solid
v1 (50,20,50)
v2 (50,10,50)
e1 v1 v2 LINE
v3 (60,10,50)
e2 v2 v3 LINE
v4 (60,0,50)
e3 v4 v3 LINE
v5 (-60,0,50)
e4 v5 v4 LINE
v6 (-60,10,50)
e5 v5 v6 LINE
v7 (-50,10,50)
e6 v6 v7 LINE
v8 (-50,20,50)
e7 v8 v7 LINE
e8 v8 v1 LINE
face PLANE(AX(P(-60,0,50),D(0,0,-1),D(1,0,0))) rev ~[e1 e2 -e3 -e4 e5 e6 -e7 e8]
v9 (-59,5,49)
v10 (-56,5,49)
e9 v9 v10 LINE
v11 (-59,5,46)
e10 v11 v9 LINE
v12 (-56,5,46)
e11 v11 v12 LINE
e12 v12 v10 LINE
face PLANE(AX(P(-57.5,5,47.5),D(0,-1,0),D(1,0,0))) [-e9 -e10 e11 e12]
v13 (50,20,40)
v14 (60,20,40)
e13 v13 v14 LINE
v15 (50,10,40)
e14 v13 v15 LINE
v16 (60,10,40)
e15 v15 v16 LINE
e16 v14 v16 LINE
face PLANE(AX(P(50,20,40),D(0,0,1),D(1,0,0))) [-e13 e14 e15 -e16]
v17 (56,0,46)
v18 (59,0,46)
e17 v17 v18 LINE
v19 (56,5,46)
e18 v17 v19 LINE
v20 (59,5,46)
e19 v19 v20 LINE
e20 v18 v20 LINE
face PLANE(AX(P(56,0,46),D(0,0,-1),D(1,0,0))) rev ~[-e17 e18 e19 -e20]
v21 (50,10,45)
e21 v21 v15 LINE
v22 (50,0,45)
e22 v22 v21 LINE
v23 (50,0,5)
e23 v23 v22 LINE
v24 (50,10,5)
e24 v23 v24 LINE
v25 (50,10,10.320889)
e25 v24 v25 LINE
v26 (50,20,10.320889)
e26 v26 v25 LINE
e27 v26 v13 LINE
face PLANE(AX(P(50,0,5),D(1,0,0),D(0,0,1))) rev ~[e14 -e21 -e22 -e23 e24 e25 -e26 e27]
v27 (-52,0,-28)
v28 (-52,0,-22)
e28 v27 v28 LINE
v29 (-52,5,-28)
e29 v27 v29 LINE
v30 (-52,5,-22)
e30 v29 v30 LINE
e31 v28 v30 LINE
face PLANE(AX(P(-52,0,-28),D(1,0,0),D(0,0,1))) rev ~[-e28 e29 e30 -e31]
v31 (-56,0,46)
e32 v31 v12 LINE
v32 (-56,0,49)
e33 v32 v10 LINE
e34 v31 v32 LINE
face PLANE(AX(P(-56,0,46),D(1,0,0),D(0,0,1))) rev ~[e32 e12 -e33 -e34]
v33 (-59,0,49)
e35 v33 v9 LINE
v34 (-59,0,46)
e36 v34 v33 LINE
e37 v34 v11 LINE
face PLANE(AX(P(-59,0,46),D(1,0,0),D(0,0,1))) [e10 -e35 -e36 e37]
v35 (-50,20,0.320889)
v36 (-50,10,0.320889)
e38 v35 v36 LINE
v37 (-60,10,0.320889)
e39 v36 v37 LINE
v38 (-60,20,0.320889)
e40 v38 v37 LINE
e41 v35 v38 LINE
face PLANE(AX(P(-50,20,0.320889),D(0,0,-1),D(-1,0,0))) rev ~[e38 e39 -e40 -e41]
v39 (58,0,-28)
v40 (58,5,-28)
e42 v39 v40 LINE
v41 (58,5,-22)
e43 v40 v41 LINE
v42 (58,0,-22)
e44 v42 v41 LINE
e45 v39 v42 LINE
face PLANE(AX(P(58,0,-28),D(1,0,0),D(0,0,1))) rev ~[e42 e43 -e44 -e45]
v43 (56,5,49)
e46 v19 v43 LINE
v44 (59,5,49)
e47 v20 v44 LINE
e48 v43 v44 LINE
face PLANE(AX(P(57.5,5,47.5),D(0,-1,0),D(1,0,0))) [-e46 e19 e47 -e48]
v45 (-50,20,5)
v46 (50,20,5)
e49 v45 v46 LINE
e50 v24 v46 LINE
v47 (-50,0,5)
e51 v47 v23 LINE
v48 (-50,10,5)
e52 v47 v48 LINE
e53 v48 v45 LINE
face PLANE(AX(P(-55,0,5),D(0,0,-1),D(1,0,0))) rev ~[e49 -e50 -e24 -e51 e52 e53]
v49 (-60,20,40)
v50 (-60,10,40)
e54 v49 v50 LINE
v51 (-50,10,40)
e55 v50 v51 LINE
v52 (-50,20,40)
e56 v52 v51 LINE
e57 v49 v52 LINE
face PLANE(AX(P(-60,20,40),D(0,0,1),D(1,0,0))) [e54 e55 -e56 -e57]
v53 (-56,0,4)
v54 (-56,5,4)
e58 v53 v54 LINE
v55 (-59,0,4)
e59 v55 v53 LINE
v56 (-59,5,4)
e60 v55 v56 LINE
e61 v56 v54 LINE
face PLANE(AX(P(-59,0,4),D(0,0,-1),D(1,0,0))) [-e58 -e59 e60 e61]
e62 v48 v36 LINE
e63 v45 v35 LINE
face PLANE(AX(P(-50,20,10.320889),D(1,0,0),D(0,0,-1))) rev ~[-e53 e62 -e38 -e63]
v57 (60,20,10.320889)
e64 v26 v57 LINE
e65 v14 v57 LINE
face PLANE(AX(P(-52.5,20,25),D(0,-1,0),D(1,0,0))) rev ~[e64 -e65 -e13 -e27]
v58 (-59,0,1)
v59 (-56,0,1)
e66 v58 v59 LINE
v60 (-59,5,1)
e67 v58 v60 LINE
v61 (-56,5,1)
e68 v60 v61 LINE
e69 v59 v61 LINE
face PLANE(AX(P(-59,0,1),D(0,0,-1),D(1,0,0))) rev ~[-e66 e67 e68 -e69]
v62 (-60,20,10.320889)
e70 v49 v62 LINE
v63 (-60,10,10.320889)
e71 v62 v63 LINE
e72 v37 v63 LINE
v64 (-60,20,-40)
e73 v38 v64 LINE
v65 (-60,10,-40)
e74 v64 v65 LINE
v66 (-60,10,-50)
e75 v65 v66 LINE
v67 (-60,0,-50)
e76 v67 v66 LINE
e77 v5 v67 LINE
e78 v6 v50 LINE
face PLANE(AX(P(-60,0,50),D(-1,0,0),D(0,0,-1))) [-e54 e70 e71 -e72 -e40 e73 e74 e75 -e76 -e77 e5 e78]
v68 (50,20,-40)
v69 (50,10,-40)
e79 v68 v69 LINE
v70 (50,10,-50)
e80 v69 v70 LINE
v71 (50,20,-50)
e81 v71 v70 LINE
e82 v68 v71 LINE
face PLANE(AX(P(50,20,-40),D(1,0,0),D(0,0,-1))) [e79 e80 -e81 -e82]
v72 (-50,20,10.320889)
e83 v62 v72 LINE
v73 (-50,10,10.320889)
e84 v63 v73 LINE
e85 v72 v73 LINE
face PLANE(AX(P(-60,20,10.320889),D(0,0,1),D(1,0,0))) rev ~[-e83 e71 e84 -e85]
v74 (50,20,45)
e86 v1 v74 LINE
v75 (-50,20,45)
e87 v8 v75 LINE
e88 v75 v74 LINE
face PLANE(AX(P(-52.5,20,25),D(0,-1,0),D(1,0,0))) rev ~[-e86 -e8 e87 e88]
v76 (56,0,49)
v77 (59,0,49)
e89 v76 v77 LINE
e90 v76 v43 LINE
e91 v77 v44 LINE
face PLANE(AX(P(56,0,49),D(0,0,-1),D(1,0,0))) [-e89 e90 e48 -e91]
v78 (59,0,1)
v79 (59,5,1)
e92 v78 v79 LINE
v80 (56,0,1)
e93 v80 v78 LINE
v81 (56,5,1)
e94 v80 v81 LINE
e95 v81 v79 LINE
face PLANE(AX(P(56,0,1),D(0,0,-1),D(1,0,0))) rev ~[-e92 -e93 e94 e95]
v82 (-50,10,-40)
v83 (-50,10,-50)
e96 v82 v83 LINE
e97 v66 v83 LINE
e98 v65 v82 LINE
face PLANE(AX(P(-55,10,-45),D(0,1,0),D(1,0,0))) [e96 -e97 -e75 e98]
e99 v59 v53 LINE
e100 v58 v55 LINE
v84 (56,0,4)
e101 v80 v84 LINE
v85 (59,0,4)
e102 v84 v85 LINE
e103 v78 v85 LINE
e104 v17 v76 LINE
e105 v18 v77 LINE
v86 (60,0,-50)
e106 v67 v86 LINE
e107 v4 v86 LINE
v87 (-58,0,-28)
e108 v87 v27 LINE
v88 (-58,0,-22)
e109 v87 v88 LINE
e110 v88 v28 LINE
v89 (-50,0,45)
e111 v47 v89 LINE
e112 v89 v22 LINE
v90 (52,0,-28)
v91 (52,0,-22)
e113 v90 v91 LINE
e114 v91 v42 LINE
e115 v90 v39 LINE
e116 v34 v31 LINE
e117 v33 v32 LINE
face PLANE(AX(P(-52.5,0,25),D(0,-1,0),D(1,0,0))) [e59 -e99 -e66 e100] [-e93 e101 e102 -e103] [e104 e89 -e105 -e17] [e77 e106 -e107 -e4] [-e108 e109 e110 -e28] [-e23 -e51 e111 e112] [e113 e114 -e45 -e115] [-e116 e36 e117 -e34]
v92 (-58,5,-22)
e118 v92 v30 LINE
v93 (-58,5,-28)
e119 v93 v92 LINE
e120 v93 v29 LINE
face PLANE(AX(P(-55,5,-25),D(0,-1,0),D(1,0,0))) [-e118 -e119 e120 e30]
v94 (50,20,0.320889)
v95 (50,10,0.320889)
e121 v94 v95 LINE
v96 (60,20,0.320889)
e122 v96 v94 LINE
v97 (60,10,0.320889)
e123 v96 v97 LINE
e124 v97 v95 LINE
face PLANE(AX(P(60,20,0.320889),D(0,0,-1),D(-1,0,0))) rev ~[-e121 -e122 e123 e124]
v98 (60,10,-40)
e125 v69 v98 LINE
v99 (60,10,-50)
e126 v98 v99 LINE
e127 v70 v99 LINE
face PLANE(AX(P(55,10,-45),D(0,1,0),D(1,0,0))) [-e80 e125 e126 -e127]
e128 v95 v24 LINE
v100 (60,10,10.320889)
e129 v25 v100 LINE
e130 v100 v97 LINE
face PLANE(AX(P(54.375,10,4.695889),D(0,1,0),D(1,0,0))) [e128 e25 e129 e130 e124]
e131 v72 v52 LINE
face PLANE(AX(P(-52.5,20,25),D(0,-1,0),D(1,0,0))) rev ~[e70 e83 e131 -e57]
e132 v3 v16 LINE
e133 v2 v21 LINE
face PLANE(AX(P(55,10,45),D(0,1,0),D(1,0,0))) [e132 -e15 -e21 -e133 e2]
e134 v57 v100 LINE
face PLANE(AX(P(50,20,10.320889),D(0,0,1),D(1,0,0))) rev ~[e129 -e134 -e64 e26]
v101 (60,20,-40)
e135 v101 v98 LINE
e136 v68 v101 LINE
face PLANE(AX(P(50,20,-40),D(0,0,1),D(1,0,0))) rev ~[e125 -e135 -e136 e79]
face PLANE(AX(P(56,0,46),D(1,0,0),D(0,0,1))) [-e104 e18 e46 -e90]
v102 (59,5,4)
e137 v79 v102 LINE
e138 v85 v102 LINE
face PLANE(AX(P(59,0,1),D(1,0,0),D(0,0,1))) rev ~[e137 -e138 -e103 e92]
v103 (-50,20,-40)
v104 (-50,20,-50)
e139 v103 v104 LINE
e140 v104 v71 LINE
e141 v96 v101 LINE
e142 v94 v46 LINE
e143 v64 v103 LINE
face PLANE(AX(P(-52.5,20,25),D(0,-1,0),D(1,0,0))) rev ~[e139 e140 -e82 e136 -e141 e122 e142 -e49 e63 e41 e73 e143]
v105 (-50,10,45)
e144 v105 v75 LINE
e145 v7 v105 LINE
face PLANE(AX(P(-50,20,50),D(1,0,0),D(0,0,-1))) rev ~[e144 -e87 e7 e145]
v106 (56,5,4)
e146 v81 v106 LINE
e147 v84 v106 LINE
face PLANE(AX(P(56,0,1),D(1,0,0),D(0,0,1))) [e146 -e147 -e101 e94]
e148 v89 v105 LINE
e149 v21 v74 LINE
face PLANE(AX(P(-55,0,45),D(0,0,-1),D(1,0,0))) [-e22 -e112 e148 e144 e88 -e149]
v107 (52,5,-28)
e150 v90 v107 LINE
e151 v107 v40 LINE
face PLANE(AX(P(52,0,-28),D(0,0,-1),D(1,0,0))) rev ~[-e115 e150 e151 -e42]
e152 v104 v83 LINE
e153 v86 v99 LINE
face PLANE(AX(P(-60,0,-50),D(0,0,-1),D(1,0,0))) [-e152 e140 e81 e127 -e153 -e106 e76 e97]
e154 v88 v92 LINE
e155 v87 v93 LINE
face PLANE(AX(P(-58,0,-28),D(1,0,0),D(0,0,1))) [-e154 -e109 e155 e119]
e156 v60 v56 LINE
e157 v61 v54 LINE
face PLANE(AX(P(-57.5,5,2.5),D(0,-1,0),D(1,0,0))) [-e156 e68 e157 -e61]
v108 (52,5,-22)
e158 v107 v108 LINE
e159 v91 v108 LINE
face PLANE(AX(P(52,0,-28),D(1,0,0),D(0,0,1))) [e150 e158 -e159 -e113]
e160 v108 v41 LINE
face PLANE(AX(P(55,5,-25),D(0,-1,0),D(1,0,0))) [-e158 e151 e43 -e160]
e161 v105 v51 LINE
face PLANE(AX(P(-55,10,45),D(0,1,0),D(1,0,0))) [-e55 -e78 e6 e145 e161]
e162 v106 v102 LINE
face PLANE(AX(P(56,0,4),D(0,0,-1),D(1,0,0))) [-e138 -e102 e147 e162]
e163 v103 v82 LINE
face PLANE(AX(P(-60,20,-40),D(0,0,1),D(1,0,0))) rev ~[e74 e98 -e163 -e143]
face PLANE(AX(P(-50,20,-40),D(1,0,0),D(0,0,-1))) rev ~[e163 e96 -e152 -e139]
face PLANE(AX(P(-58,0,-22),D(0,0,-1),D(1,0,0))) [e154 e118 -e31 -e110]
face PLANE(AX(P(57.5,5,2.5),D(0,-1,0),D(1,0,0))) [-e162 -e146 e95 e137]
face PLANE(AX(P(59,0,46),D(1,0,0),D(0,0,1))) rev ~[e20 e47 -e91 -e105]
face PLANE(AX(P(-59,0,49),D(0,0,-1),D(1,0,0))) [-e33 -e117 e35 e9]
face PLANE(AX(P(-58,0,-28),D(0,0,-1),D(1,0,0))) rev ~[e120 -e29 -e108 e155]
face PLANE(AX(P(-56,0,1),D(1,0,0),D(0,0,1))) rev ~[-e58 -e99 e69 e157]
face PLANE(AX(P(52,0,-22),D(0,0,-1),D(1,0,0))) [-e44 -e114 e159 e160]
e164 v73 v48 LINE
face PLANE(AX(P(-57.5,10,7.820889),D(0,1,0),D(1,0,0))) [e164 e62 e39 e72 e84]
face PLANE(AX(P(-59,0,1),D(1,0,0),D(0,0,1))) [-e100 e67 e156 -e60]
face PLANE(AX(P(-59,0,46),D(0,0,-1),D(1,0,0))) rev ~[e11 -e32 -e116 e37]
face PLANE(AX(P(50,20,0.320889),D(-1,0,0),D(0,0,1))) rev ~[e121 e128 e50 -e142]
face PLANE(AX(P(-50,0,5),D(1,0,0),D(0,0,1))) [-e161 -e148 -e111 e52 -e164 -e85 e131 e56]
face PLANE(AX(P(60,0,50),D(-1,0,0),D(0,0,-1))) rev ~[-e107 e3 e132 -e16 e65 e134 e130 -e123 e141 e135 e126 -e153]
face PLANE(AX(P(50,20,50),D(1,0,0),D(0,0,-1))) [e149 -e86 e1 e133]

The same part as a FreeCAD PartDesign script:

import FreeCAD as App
import Part
import Sketcher

V = App.Vector


def add_polygon(sketch, points):
    """Adds a closed chain of lines whose ends are joined by coincident constraints."""
    first, n = sketch.GeometryCount, len(points)
    for a, b in zip(points, points[1:] + points[:1]):
        sketch.addGeometry(Part.LineSegment(App.Vector(*a, 0), App.Vector(*b, 0)), False)
    for i in range(n):
        sketch.addConstraint(Sketcher.Constraint("Coincident", first + i, 2, first + (i + 1) % n, 1))

doc = App.newDocument("Part")
params = doc.addObject("Spreadsheet::Sheet", "Params")
for row, (alias, value) in enumerate([
    ("sketch1_width", "120 mm"),
    ("sketch1_height", "100 mm"),
    ("pad1_length", "20 mm"),
    ("sketch2_width", "110 mm"),
    ("sketch2_height", "40 mm"),
    ("pocket1_length", "20 mm"),
    ("sketch3_width", "5 mm"),
    ("sketch3_height", "40 mm"),
    ("pad2_length", "20 mm"),
    ("sketch4_width", "10 mm"),
    ("pocket2_length", "10 mm"),
    ("sketch5_width", "10 mm"),
    ("pocket3_length", "10 mm"),
    ("sketch6_width", "3 mm"),
    ("sketch6_width2", "6 mm"),
    ("pocket4_length", "5 mm"),
], start=1):
    params.set(f"A{row}", alias)
    params.set(f"B{row}", "=" + value)
    params.setAlias(f"B{row}", alias)

body = doc.addObject("PartDesign::Body", "Body")

# Sketch on XZ plane
sketch1 = doc.addObject("Sketcher::SketchObject", "Sketch")
body.addObject(sketch1)
sketch1.AttachmentSupport = (doc.XZ_Plane, [""])
sketch1.MapMode = "FlatFace"
add_polygon(sketch1, [(-60, -50), (-60, 50), (60, 50), (60, -50)])  # lines 0-3
sketch1.addConstraint(Sketcher.Constraint("Vertical", 0))
sketch1.addConstraint(Sketcher.Constraint("Horizontal", 1))
sketch1.addConstraint(Sketcher.Constraint("Vertical", 2))
sketch1.addConstraint(Sketcher.Constraint("Horizontal", 3))
sketch1.addConstraint(Sketcher.Constraint("Symmetric", 0, 2, 2, 2, -1, 1))
sketch1.addConstraint(Sketcher.Constraint("DistanceX", 1, 1, 1, 2, 120.0))
sketch1.addConstraint(Sketcher.Constraint("DistanceY", 0, 1, 0, 2, 100.0))
sketch1.setExpression("Constraints[9]", "Params.sketch1_width")
sketch1.setExpression("Constraints[10]", "Params.sketch1_height")
pad1 = doc.addObject("PartDesign::Pad", "Pad")
body.addObject(pad1)
pad1.Profile = sketch1
pad1.setExpression("Length", "Params.pad1_length")
pad1.Reversed = True

# Sketch on XZ plane
sketch2 = doc.addObject("Sketcher::SketchObject", "Sketch001")
body.addObject(sketch2)
sketch2.AttachmentSupport = (doc.XZ_Plane, [""])
sketch2.MapMode = "FlatFace"
add_polygon(sketch2, [(-55, 45), (-55, 5), (55, 5), (55, 45)])  # lines 0-3
sketch2.addConstraint(Sketcher.Constraint("Vertical", 0))
sketch2.addConstraint(Sketcher.Constraint("Horizontal", 1))
sketch2.addConstraint(Sketcher.Constraint("Vertical", 2))
sketch2.addConstraint(Sketcher.Constraint("Horizontal", 3))
sketch2.addConstraint(Sketcher.Constraint("DistanceX", 1, 1, 1, 2, 110.0))
sketch2.addConstraint(Sketcher.Constraint("DistanceY", 0, 2, 0, 1, 40.0))
sketch2.addConstraint(Sketcher.Constraint("DistanceX", 0, 2, -1, 1, 55.0))
sketch2.addConstraint(Sketcher.Constraint("DistanceY", -1, 1, 0, 2, 5.0))
sketch2.setExpression("Constraints[8]", "Params.sketch2_width")
sketch2.setExpression("Constraints[9]", "Params.sketch2_height")
pocket1 = doc.addObject("PartDesign::Pocket", "Pocket")
body.addObject(pocket1)
pocket1.Profile = sketch2
pocket1.setExpression("Length", "Params.pocket1_length")

# Sketch on XZ plane
sketch3 = doc.addObject("Sketcher::SketchObject", "Sketch002")
body.addObject(sketch3)
sketch3.AttachmentSupport = (doc.XZ_Plane, [""])
sketch3.MapMode = "FlatFace"
add_polygon(sketch3, [(-55, 45), (-55, 5), (-50, 5), (-50, 45)])  # lines 0-3
add_polygon(sketch3, [(50, 45), (50, 5), (55, 5), (55, 45)])  # lines 4-7
sketch3.addConstraint(Sketcher.Constraint("Vertical", 0))
sketch3.addConstraint(Sketcher.Constraint("Horizontal", 1))
sketch3.addConstraint(Sketcher.Constraint("Vertical", 2))
sketch3.addConstraint(Sketcher.Constraint("Horizontal", 3))
sketch3.addConstraint(Sketcher.Constraint("Vertical", 4))
sketch3.addConstraint(Sketcher.Constraint("Horizontal", 5))
sketch3.addConstraint(Sketcher.Constraint("Vertical", 6))
sketch3.addConstraint(Sketcher.Constraint("Horizontal", 7))
sketch3.addConstraint(Sketcher.Constraint("Symmetric", 1, 2, 4, 2, -2))
sketch3.addConstraint(Sketcher.Constraint("Symmetric", 3, 2, 6, 2, -2))
sketch3.addConstraint(Sketcher.Constraint("DistanceX", 1, 1, 1, 2, 5.0))
sketch3.addConstraint(Sketcher.Constraint("DistanceY", 0, 2, 0, 1, 40.0))
sketch3.addConstraint(Sketcher.Constraint("DistanceX", 0, 2, -1, 1, 55.0))
sketch3.addConstraint(Sketcher.Constraint("DistanceY", -1, 1, 0, 2, 5.0))
sketch3.setExpression("Constraints[18]", "Params.sketch3_width")
sketch3.setExpression("Constraints[19]", "Params.sketch3_height")
pad2 = doc.addObject("PartDesign::Pad", "Pad001")
body.addObject(pad2)
pad2.Profile = sketch3
pad2.setExpression("Length", "Params.pad2_length")
pad2.Reversed = True

# Sketch on XZ plane
sketch4 = doc.addObject("Sketcher::SketchObject", "Sketch003")
body.addObject(sketch4)
sketch4.AttachmentSupport = (doc.XZ_Plane, [""])
sketch4.MapMode = "FlatFace"
sketch4.AttachmentOffset = App.Placement(V(0, 0, -20), App.Rotation())
add_polygon(sketch4, [(-60, 10), (-50, 10), (-50, 0), (-60, 0)])  # lines 0-3
add_polygon(sketch4, [(60, 0), (50, 0), (50, 10), (60, 10)])  # lines 4-7
sketch4.addConstraint(Sketcher.Constraint("Horizontal", 0))
sketch4.addConstraint(Sketcher.Constraint("Vertical", 1))
sketch4.addConstraint(Sketcher.Constraint("Horizontal", 2))
sketch4.addConstraint(Sketcher.Constraint("Vertical", 3))
sketch4.addConstraint(Sketcher.Constraint("Horizontal", 4))
sketch4.addConstraint(Sketcher.Constraint("Vertical", 5))
sketch4.addConstraint(Sketcher.Constraint("Horizontal", 6))
sketch4.addConstraint(Sketcher.Constraint("Vertical", 7))
sketch4.addConstraint(Sketcher.Constraint("Symmetric", 1, 2, 4, 2, -2))
sketch4.addConstraint(Sketcher.Constraint("Symmetric", 3, 2, 6, 2, -2))
sketch4.addConstraint(Sketcher.Constraint("Equal", 6, 1))
sketch4.addConstraint(Sketcher.Constraint("DistanceX", 0, 1, 0, 2, 10.0))
sketch4.addConstraint(Sketcher.Constraint("DistanceX", 0, 2, -1, 1, 50.0))
sketch4.addConstraint(Sketcher.Constraint("DistanceY", -1, 1, 0, 2, 10.320889))
sketch4.setExpression("Constraints[19]", "Params.sketch4_width")
pocket2 = doc.addObject("PartDesign::Pocket", "Pocket001")
body.addObject(pocket2)
pocket2.Profile = sketch4
pocket2.setExpression("Length", "Params.pocket2_length")
pocket2.Reversed = True

# Sketch on XZ plane
sketch5 = doc.addObject("Sketcher::SketchObject", "Sketch004")
body.addObject(sketch5)
sketch5.AttachmentSupport = (doc.XZ_Plane, [""])
sketch5.MapMode = "FlatFace"
sketch5.AttachmentOffset = App.Placement(V(0, 0, -20), App.Rotation())
add_polygon(sketch5, [(-60, -50), (-60, -40), (-50, -40), (-50, -50)])  # lines 0-3
add_polygon(sketch5, [(50, -50), (50, -40), (60, -40), (60, -50)])  # lines 4-7
add_polygon(sketch5, [(50, 40), (50, 50), (60, 50), (60, 40)])  # lines 8-11
add_polygon(sketch5, [(-60, 40), (-60, 50), (-50, 50), (-50, 40)])  # lines 12-15
sketch5.addConstraint(Sketcher.Constraint("Vertical", 0))
sketch5.addConstraint(Sketcher.Constraint("Horizontal", 1))
sketch5.addConstraint(Sketcher.Constraint("Vertical", 2))
sketch5.addConstraint(Sketcher.Constraint("Horizontal", 3))
sketch5.addConstraint(Sketcher.Constraint("Vertical", 4))
sketch5.addConstraint(Sketcher.Constraint("Horizontal", 5))
sketch5.addConstraint(Sketcher.Constraint("Vertical", 6))
sketch5.addConstraint(Sketcher.Constraint("Horizontal", 7))
sketch5.addConstraint(Sketcher.Constraint("Vertical", 8))
sketch5.addConstraint(Sketcher.Constraint("Horizontal", 9))
sketch5.addConstraint(Sketcher.Constraint("Vertical", 10))
sketch5.addConstraint(Sketcher.Constraint("Horizontal", 11))
sketch5.addConstraint(Sketcher.Constraint("Vertical", 12))
sketch5.addConstraint(Sketcher.Constraint("Horizontal", 13))
sketch5.addConstraint(Sketcher.Constraint("Vertical", 14))
sketch5.addConstraint(Sketcher.Constraint("Horizontal", 15))
sketch5.addConstraint(Sketcher.Constraint("Symmetric", 2, 2, 8, 2, -1, 1))
sketch5.addConstraint(Sketcher.Constraint("Symmetric", 0, 2, 10, 2, -1, 1))
sketch5.addConstraint(Sketcher.Constraint("Symmetric", 6, 2, 12, 2, -1, 1))
sketch5.addConstraint(Sketcher.Constraint("Symmetric", 4, 2, 14, 2, -1, 1))
sketch5.addConstraint(Sketcher.Constraint("Symmetric", 1, 2, 4, 2, -2))
sketch5.addConstraint(Sketcher.Constraint("Symmetric", 3, 2, 6, 2, -2))
sketch5.addConstraint(Sketcher.Constraint("Equal", 15, 0))
sketch5.addConstraint(Sketcher.Constraint("DistanceX", 1, 1, 1, 2, 10.0))
sketch5.addConstraint(Sketcher.Constraint("DistanceX", 0, 2, -1, 1, 60.0))
sketch5.addConstraint(Sketcher.Constraint("DistanceY", 0, 2, -1, 1, 40.0))
sketch5.setExpression("Constraints[39]", "Params.sketch5_width")
pocket3 = doc.addObject("PartDesign::Pocket", "Pocket002")
body.addObject(pocket3)
pocket3.Profile = sketch5
pocket3.setExpression("Length", "Params.pocket3_length")
pocket3.Reversed = True

# Sketch on XZ plane
sketch6 = doc.addObject("Sketcher::SketchObject", "Sketch005")
body.addObject(sketch6)
sketch6.AttachmentSupport = (doc.XZ_Plane, [""])
sketch6.MapMode = "FlatFace"
add_polygon(sketch6, [(-59, 49), (-59, 46), (-56, 46), (-56, 49)])  # lines 0-3
add_polygon(sketch6, [(56, 49), (56, 46), (59, 46), (59, 49)])  # lines 4-7
add_polygon(sketch6, [(-59, 4), (-59, 1), (-56, 1), (-56, 4)])  # lines 8-11
add_polygon(sketch6, [(56, 4), (56, 1), (59, 1), (59, 4)])  # lines 12-15
add_polygon(sketch6, [(52, -22), (52, -28), (58, -28), (58, -22)])  # lines 16-19
add_polygon(sketch6, [(-58, -22), (-58, -28), (-52, -28), (-52, -22)])  # lines 20-23
sketch6.addConstraint(Sketcher.Constraint("Vertical", 0))
sketch6.addConstraint(Sketcher.Constraint("Horizontal", 1))
sketch6.addConstraint(Sketcher.Constraint("Vertical", 2))
sketch6.addConstraint(Sketcher.Constraint("Horizontal", 3))
sketch6.addConstraint(Sketcher.Constraint("Vertical", 4))
sketch6.addConstraint(Sketcher.Constraint("Horizontal", 5))
sketch6.addConstraint(Sketcher.Constraint("Vertical", 6))
sketch6.addConstraint(Sketcher.Constraint("Horizontal", 7))
sketch6.addConstraint(Sketcher.Constraint("Vertical", 8))
sketch6.addConstraint(Sketcher.Constraint("Horizontal", 9))
sketch6.addConstraint(Sketcher.Constraint("Vertical", 10))
sketch6.addConstraint(Sketcher.Constraint("Horizontal", 11))
sketch6.addConstraint(Sketcher.Constraint("Vertical", 12))
sketch6.addConstraint(Sketcher.Constraint("Horizontal", 13))
sketch6.addConstraint(Sketcher.Constraint("Vertical", 14))
sketch6.addConstraint(Sketcher.Constraint("Horizontal", 15))
sketch6.addConstraint(Sketcher.Constraint("Vertical", 16))
sketch6.addConstraint(Sketcher.Constraint("Horizontal", 17))
sketch6.addConstraint(Sketcher.Constraint("Vertical", 18))
sketch6.addConstraint(Sketcher.Constraint("Horizontal", 19))
sketch6.addConstraint(Sketcher.Constraint("Vertical", 20))
sketch6.addConstraint(Sketcher.Constraint("Horizontal", 21))
sketch6.addConstraint(Sketcher.Constraint("Vertical", 22))
sketch6.addConstraint(Sketcher.Constraint("Horizontal", 23))
sketch6.addConstraint(Sketcher.Constraint("Symmetric", 1, 2, 4, 2, -2))
sketch6.addConstraint(Sketcher.Constraint("Symmetric", 3, 2, 6, 2, -2))
sketch6.addConstraint(Sketcher.Constraint("Symmetric", 9, 2, 12, 2, -2))
sketch6.addConstraint(Sketcher.Constraint("Symmetric", 11, 2, 14, 2, -2))
sketch6.addConstraint(Sketcher.Constraint("Symmetric", 17, 2, 20, 2, -2))
sketch6.addConstraint(Sketcher.Constraint("Symmetric", 19, 2, 22, 2, -2))
sketch6.addConstraint(Sketcher.Constraint("Vertical", 3, 2, 8, 2))
sketch6.addConstraint(Sketcher.Constraint("Vertical", 2, 2, 9, 2))
sketch6.addConstraint(Sketcher.Constraint("Equal", 15, 0))
sketch6.addConstraint(Sketcher.Constraint("Equal", 6, 8))
sketch6.addConstraint(Sketcher.Constraint("Equal", 23, 16))
sketch6.addConstraint(Sketcher.Constraint("DistanceX", 1, 1, 1, 2, 3.0))
sketch6.addConstraint(Sketcher.Constraint("DistanceX", 17, 1, 17, 2, 6.0))
sketch6.addConstraint(Sketcher.Constraint("DistanceX", 0, 2, -1, 1, 59.0))
sketch6.addConstraint(Sketcher.Constraint("DistanceY", -1, 1, 0, 2, 46.0))
sketch6.addConstraint(Sketcher.Constraint("DistanceY", -1, 1, 8, 2, 1.0))
sketch6.addConstraint(Sketcher.Constraint("DistanceX", -1, 1, 16, 2, 52.0))
sketch6.addConstraint(Sketcher.Constraint("DistanceY", 16, 2, -1, 1, 28.0))
sketch6.setExpression("Constraints[59]", "Params.sketch6_width")
sketch6.setExpression("Constraints[60]", "Params.sketch6_width2")
pocket4 = doc.addObject("PartDesign::Pocket", "Pocket003")
body.addObject(pocket4)
pocket4.Profile = sketch6
pocket4.setExpression("Length", "Params.pocket4_length")

doc.recompute()
